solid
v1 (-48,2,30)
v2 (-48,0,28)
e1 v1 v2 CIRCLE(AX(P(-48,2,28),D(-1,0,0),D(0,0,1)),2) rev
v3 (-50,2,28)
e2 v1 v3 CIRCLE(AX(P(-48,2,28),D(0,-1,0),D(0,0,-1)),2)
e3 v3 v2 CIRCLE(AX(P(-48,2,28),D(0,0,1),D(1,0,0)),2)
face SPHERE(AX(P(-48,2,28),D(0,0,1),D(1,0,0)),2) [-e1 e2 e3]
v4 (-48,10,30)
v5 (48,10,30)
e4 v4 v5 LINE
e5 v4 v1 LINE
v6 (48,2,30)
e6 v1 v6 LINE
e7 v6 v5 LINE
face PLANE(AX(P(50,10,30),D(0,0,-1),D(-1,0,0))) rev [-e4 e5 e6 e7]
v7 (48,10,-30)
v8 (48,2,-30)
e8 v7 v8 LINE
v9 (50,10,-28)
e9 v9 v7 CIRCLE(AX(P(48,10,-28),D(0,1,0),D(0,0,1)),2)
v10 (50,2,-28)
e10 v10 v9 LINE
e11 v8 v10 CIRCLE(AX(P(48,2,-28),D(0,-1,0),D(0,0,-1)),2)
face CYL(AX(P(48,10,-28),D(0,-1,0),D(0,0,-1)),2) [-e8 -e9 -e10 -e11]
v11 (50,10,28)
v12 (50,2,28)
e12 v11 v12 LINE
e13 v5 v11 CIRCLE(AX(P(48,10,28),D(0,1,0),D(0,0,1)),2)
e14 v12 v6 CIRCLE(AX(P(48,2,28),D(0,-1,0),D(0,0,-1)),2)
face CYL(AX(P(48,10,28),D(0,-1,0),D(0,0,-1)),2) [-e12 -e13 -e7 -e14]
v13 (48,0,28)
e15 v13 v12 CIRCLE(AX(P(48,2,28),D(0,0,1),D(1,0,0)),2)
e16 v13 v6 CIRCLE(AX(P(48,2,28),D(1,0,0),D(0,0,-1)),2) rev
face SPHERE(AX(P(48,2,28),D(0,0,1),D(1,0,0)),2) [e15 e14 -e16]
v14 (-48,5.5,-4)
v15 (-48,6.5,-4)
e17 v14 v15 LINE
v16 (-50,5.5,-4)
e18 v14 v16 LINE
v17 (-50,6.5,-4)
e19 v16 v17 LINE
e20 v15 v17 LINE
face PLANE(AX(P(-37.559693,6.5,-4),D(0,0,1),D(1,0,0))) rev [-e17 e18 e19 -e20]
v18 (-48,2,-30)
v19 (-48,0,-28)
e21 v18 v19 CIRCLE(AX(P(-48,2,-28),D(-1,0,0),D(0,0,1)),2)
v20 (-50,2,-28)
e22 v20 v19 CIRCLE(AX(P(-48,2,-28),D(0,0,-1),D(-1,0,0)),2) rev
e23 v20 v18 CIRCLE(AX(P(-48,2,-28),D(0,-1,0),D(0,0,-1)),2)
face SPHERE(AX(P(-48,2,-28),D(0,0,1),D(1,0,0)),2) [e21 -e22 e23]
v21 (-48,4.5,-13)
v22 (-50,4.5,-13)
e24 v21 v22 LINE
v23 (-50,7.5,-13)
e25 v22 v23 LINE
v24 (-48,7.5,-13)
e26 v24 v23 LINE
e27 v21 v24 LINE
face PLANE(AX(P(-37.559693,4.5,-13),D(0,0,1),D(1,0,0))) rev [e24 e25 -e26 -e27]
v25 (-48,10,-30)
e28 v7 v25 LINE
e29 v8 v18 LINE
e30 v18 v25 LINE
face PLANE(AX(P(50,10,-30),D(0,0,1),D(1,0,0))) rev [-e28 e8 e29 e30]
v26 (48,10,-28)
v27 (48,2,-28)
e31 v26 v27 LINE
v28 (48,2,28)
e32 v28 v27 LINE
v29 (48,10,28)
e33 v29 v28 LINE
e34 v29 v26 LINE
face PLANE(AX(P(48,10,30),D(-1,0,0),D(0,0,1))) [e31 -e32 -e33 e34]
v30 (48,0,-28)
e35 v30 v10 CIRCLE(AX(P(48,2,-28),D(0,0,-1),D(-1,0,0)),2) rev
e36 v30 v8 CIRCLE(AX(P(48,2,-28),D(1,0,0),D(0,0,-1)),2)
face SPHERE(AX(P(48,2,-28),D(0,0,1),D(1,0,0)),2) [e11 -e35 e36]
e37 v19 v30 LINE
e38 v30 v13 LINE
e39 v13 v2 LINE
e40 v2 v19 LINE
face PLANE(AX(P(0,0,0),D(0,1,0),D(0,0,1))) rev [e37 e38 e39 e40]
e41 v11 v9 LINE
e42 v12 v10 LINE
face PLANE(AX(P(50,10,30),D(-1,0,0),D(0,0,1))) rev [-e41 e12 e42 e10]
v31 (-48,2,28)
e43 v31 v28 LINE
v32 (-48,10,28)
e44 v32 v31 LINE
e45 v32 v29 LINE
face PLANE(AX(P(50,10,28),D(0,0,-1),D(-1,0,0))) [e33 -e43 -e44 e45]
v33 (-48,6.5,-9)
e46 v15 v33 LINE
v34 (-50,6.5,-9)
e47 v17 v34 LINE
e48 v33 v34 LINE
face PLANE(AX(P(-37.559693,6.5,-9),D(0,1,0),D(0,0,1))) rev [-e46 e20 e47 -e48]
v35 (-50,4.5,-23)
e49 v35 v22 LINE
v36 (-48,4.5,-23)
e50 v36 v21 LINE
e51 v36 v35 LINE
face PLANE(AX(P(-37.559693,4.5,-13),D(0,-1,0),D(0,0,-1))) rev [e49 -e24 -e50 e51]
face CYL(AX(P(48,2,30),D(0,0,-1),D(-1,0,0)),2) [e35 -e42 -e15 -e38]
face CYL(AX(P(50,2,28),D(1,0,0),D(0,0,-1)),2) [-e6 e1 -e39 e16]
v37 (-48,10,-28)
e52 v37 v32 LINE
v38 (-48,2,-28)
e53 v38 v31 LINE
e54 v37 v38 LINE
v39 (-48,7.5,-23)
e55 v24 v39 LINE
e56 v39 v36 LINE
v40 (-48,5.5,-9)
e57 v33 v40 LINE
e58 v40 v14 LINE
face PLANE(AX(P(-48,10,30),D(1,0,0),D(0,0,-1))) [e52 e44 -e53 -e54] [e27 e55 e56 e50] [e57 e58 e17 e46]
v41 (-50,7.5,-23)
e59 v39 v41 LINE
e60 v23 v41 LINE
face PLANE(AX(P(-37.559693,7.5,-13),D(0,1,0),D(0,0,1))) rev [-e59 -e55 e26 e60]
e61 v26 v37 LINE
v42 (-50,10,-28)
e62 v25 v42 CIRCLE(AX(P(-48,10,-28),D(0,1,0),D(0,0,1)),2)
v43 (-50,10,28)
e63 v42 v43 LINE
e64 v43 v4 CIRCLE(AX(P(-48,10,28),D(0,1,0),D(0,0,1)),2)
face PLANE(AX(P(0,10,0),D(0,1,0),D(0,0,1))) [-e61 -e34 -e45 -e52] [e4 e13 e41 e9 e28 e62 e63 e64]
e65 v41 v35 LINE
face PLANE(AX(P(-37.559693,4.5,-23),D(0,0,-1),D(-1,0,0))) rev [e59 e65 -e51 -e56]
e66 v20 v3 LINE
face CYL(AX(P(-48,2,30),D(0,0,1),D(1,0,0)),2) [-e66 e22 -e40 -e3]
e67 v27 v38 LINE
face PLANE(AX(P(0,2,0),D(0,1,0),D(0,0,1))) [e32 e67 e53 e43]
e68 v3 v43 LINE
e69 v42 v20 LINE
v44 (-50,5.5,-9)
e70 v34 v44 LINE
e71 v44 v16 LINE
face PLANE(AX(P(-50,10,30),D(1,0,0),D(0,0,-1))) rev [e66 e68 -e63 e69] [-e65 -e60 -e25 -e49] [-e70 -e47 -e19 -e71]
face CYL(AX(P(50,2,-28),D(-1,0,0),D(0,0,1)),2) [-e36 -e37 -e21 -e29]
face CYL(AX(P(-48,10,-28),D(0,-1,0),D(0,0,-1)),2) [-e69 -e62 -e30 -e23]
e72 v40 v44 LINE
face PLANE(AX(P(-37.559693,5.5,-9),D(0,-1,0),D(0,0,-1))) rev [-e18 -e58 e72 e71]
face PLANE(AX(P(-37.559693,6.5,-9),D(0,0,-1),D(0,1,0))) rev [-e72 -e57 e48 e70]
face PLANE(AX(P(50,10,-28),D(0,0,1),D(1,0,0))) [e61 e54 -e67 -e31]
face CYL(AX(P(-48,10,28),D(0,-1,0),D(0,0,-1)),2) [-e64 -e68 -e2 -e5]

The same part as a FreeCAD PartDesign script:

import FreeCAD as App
import Part
import Sketcher

V = App.Vector


def edges_at(feature, points):
    """Names of the edges that pass closest to the given points."""
    edges = feature.Shape.Edges
    near = lambda p: min(range(len(edges)), key=lambda i: edges[i].distToShape(Part.Vertex(*p))[0])
    return sorted({f"Edge{near(p) + 1}" for p in points})


def faces_at(feature, points):
    """Names of the faces that lie closest to the given points."""
    faces = feature.Shape.Faces
    near = lambda p: min(range(len(faces)), key=lambda i: faces[i].distToShape(Part.Vertex(*p))[0])
    return sorted({f"Face{near(p) + 1}" for p in points})


def add_polygon(sketch, points):
    """Adds a closed chain of lines whose ends are joined by coincident constraints."""
    first, n = sketch.GeometryCount, len(points)
    for a, b in zip(points, points[1:] + points[:1]):
        sketch.addGeometry(Part.LineSegment(App.Vector(*a, 0), App.Vector(*b, 0)), False)
    for i in range(n):
        sketch.addConstraint(Sketcher.Constraint("Coincident", first + i, 2, first + (i + 1) % n, 1))

doc = App.newDocument("Part")
params = doc.addObject("Spreadsheet::Sheet", "Params")
for row, (alias, value) in enumerate([
    ("sketch1_width", "100 mm"),
    ("sketch1_height", "60 mm"),
    ("pad1_length", "10 mm"),
    ("thickness_wall", "2 mm"),
    ("fillet_radius", "2 mm"),
    ("sketch2_width", "1 mm"),
    ("sketch2_width2", "3 mm"),
    ("sketch2_height", "5 mm"),
    ("sketch2_height2", "10 mm"),
    ("pocket1_length", "2 mm"),
], start=1):
    params.set(f"A{row}", alias)
    params.set(f"B{row}", "=" + value)
    params.setAlias(f"B{row}", alias)

body = doc.addObject("PartDesign::Body", "Body")

sketch1 = doc.addObject("Sketcher::SketchObject", "Sketch")
body.addObject(sketch1)
sketch1.AttachmentSupport = (doc.XZ_Plane, [""])
sketch1.MapMode = "FlatFace"
add_polygon(sketch1, [(-50, -30), (-50, 30), (50, 30), (50, -30)])
sketch1.addConstraint([
    Sketcher.Constraint("Vertical", 0),
    Sketcher.Constraint("Horizontal", 1),
    Sketcher.Constraint("Vertical", 2),
    Sketcher.Constraint("Horizontal", 3),
    Sketcher.Constraint("Symmetric", 0, 2, 2, 2, -1, 1),
    Sketcher.Constraint("DistanceX", 1, 1, 1, 2, 100.0),
    Sketcher.Constraint("DistanceY", 0, 1, 0, 2, 60.0),
])
sketch1.setExpression("Constraints[9]", "Params.sketch1_width")
sketch1.setExpression("Constraints[10]", "Params.sketch1_height")
pad1 = doc.addObject("PartDesign::Pad", "Pad")
body.addObject(pad1)
pad1.Profile = sketch1
pad1.setExpression("Length", "Params.pad1_length")
pad1.Reversed = True
doc.recompute()

thickness = doc.addObject("PartDesign::Thickness", "Thickness")
body.addObject(thickness)
thickness.Base = (pad1, faces_at(pad1, [(0, 10, 0)]))
thickness.setExpression("Value", "Params.thickness_wall")
thickness.Reversed = True
thickness.Join = "Intersection"
doc.recompute()

fillet = doc.addObject("PartDesign::Fillet", "Fillet")
body.addObject(fillet)
fillet.Base = (thickness, edges_at(thickness, [
    (0, 0, -30),
    (50, 0, 0),
    (0, 0, 30),
    (-50, 0, 0),
    (-50, 5, -30),
    (50, 5, -30),
    (50, 5, 30),
    (-50, 5, 30),
]))
fillet.setExpression("Radius", "Params.fillet_radius")

sketch2 = doc.addObject("Sketcher::SketchObject", "Sketch001")
body.addObject(sketch2)
sketch2.AttachmentSupport = (doc.YZ_Plane, [""])
sketch2.MapMode = "FlatFace"
sketch2.AttachmentOffset = App.Placement(V(0, 0, -50), App.Rotation())
add_polygon(sketch2, [(6.5, -9), (5.5, -9), (5.5, -4), (6.5, -4)])
add_polygon(sketch2, [(7.5, -23), (4.5, -23), (4.5, -13), (7.5, -13)])
sketch2.addConstraint([
    Sketcher.Constraint("Horizontal", 0),
    Sketcher.Constraint("Vertical", 1),
    Sketcher.Constraint("Horizontal", 2),
    Sketcher.Constraint("Vertical", 3),
    Sketcher.Constraint("Horizontal", 4),
    Sketcher.Constraint("Vertical", 5),
    Sketcher.Constraint("Horizontal", 6),
    Sketcher.Constraint("Vertical", 7),
    Sketcher.Constraint("DistanceX", 0, 2, 0, 1, 1.0),
    Sketcher.Constraint("DistanceX", 4, 2, 4, 1, 3.0),
    Sketcher.Constraint("DistanceY", 1, 1, 1, 2, 5.0),
    Sketcher.Constraint("DistanceY", 5, 1, 5, 2, 10.0),
    Sketcher.Constraint("DistanceY", 0, 2, -1, 1, 9.0),
    Sketcher.Constraint("DistanceY", 4, 2, -1, 1, 23.0),
    Sketcher.Constraint("DistanceX", 4, 2, 0, 2, 1.0),
    Sketcher.Constraint("DistanceX", -1, 1, 0, 2, 5.5),
])
sketch2.setExpression("Constraints[16]", "Params.sketch2_width")
sketch2.setExpression("Constraints[17]", "Params.sketch2_width2")
sketch2.setExpression("Constraints[18]", "Params.sketch2_height")
sketch2.setExpression("Constraints[19]", "Params.sketch2_height2")
pocket1 = doc.addObject("PartDesign::Pocket", "Pocket")
body.addObject(pocket1)
pocket1.Profile = sketch2
pocket1.setExpression("Length", "Params.pocket1_length")
pocket1.Reversed = True

doc.recompute()
